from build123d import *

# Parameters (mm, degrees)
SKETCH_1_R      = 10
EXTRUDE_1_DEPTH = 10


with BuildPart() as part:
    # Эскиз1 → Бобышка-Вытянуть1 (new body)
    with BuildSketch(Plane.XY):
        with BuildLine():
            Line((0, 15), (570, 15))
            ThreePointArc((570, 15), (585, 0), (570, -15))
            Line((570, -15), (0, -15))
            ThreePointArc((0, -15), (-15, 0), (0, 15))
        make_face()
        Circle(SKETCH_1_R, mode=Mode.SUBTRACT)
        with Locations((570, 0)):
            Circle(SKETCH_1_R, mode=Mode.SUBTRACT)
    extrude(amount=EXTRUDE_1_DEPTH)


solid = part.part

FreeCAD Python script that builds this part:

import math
import FreeCAD as App
import Part
import Sketcher

V = App.Vector

doc = App.newDocument("Part")
body = doc.addObject("PartDesign::Body", "Body")

# Sketch on XY plane
sketch1 = doc.addObject("Sketcher::SketchObject", "Sketch")
body.addObject(sketch1)
sketch1.AttachmentSupport = (doc.XY_Plane, [""])
sketch1.MapMode = "FlatFace"
sketch1.addGeometry(Part.LineSegment(V(570, 15, 0), V(0, 15, 0)), False)
sketch1.addGeometry(Part.ArcOfCircle(Part.Circle(V(0, 0, 0), V(0, 0, 1), 15), math.radians(90), math.radians(270)), False)
sketch1.addGeometry(Part.LineSegment(V(0, -15, 0), V(570, -15, 0)), False)
sketch1.addGeometry(Part.ArcOfCircle(Part.Circle(V(570, 0, 0), V(0, 0, 1), 15), math.radians(-90), math.radians(90)), False)
sketch1.addGeometry(Part.Circle(V(570, 0, 0), V(0, 0, 1), 10), False)
sketch1.addGeometry(Part.Circle(V(0, 0, 0), V(0, 0, 1), 10), False)
sketch1.addConstraint(Sketcher.Constraint("Tangent", 0, 2, 1, 1))
sketch1.addConstraint(Sketcher.Constraint("Tangent", 1, 2, 2, 1))
sketch1.addConstraint(Sketcher.Constraint("Tangent", 2, 2, 3, 1))
sketch1.addConstraint(Sketcher.Constraint("Tangent", 3, 2, 0, 1))
sketch1.addConstraint(Sketcher.Constraint("Horizontal", 0))
sketch1.addConstraint(Sketcher.Constraint("Horizontal", 2))
sketch1.addConstraint(Sketcher.Constraint("Coincident", 1, 3, -1, 1))
sketch1.addConstraint(Sketcher.Constraint("Coincident", 5, 3, -1, 1))
sketch1.addConstraint(Sketcher.Constraint("Coincident", 4, 3, 3, 3))
sketch1.addConstraint(Sketcher.Constraint("Equal", 4, 5))
sketch1.addConstraint(Sketcher.Constraint("Diameter", 4, 20.0))
sketch1.addConstraint(Sketcher.Constraint("Radius", 1, 15.0))
sketch1.addConstraint(Sketcher.Constraint("DistanceX", 0, 2, 0, 1, 570.0))
pad1 = doc.addObject("PartDesign::Pad", "Pad")
body.addObject(pad1)
pad1.Profile = sketch1
pad1.Length = 10

doc.recompute()
